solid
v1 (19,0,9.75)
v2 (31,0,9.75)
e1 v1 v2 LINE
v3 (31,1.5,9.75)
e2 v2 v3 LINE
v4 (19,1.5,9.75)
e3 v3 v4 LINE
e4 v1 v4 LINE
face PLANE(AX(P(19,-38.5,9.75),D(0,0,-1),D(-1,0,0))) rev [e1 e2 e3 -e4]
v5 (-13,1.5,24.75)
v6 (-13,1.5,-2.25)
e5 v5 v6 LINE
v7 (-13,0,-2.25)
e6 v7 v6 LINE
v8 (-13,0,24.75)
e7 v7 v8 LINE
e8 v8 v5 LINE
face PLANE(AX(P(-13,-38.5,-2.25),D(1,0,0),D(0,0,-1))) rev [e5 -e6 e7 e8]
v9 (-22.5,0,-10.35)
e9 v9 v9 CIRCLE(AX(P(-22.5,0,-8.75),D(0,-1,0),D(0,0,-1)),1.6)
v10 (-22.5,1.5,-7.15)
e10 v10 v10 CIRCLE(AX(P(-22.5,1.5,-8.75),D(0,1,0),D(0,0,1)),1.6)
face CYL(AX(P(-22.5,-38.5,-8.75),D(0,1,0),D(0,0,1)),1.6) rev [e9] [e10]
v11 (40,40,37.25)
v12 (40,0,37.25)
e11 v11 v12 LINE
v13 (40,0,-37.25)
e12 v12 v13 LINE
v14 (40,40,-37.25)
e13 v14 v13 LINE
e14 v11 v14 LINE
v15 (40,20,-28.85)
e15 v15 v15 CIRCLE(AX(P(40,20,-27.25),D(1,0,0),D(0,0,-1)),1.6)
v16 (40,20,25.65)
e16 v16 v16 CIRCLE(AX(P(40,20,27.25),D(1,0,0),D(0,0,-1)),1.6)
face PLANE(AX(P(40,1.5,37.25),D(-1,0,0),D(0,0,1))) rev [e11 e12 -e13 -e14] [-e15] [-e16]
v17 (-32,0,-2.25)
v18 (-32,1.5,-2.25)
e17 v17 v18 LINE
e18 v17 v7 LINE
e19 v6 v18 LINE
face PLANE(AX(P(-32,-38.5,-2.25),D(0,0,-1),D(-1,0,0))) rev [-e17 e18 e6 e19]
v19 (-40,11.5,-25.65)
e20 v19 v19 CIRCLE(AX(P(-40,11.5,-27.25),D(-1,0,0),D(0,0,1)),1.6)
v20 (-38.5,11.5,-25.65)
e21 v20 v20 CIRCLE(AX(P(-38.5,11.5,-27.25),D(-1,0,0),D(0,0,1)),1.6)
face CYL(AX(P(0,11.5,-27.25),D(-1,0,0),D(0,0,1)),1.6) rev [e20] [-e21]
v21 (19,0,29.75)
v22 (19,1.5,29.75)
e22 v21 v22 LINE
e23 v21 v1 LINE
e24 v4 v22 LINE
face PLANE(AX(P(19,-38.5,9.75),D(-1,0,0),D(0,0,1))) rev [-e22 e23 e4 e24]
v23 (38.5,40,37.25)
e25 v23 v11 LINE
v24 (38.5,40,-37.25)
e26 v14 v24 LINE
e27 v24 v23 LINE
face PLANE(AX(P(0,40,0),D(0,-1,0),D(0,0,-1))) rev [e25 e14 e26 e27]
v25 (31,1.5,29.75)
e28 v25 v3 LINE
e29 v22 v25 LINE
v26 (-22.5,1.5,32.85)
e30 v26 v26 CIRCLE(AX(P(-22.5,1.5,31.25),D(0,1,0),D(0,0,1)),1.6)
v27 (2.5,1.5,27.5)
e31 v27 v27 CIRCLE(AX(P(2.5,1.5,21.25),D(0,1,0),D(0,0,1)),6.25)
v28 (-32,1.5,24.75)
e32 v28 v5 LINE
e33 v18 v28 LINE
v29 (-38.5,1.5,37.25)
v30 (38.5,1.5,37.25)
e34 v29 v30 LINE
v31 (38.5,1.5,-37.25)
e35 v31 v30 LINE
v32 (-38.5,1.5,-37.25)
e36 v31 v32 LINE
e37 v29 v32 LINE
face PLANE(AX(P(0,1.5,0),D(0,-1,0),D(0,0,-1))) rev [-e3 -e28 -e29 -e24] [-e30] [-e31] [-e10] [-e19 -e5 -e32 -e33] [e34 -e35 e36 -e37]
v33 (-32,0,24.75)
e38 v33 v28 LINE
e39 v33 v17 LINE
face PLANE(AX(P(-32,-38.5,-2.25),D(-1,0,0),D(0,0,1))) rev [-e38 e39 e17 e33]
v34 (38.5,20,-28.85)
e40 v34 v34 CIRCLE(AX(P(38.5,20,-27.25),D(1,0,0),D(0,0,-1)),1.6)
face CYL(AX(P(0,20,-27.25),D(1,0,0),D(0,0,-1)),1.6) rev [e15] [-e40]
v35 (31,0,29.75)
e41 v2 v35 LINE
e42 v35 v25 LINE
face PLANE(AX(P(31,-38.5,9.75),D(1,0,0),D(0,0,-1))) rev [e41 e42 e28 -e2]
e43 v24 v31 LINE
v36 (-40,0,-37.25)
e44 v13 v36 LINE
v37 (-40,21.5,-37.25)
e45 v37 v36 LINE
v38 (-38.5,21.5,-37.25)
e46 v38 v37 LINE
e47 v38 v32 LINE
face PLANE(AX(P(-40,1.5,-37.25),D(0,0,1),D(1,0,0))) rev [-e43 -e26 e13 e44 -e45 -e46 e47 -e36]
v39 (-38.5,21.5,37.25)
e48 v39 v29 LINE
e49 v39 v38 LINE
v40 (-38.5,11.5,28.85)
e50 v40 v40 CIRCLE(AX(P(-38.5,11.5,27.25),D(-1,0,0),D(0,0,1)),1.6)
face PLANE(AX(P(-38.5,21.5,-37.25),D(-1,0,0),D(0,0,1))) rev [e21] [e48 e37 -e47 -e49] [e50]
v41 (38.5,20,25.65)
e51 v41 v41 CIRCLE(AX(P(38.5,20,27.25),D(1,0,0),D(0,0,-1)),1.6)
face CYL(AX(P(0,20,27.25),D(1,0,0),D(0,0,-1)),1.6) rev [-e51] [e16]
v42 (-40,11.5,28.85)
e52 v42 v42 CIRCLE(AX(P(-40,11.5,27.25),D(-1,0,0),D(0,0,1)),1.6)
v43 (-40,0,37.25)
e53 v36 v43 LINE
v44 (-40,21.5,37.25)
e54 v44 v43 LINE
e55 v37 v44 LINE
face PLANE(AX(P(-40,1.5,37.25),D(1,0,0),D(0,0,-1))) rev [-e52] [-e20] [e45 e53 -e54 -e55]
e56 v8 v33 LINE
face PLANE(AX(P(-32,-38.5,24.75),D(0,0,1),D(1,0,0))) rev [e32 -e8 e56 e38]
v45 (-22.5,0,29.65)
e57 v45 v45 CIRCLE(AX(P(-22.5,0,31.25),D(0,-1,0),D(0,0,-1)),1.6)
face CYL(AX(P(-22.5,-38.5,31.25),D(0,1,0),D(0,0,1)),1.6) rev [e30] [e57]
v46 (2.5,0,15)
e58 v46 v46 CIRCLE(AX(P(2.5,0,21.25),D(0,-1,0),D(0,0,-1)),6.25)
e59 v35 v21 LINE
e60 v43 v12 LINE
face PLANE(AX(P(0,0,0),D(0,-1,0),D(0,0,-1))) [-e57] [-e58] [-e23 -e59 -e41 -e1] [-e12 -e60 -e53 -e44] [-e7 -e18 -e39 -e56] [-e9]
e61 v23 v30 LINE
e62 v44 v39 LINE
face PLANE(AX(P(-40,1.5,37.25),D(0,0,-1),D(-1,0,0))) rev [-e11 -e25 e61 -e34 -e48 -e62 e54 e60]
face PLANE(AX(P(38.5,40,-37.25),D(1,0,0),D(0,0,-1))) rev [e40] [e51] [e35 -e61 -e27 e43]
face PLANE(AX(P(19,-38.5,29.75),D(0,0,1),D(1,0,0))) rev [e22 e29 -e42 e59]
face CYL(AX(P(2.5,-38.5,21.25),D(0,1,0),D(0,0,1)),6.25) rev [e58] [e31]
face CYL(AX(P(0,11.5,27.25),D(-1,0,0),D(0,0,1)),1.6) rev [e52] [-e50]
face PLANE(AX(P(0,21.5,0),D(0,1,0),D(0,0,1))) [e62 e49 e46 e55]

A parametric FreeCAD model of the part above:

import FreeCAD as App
import Part
import Sketcher
from FreeCAD import Vector
Q = App.Units.Quantity

doc = App.newDocument("Part")
body = doc.addObject("PartDesign::Body", "Body")

sketch1 = body.newObject("Sketcher::SketchObject", "Sketch")
sketch1.AttachmentSupport = (doc.getObject("XZ_Plane"), [""])
sketch1.MapMode = "FlatFace"
sketch1.addGeometry([
    Part.LineSegment(Vector(-40, -37, 0), Vector(-40, 37, 0)),
    Part.LineSegment(Vector(-40, 37, 0), Vector(40, 37, 0)),
    Part.LineSegment(Vector(40, 37, 0), Vector(40, -37, 0)),
    Part.LineSegment(Vector(40, -37, 0), Vector(-40, -37, 0)),
], False)
sketch1.addConstraint([
    Sketcher.Constraint("Coincident", 0, 2, 1, 1),
    Sketcher.Constraint("Coincident", 1, 2, 2, 1),
    Sketcher.Constraint("Coincident", 2, 2, 3, 1),
    Sketcher.Constraint("Coincident", 3, 2, 0, 1),
    Sketcher.Constraint("Vertical", 0),
    Sketcher.Constraint("Horizontal", 1),
    Sketcher.Constraint("Vertical", 2),
    Sketcher.Constraint("Horizontal", 3),
    Sketcher.Constraint("Symmetric", 0, 2, 2, 2, -1, 1),
    Sketcher.Constraint("DistanceX", 1, 1, 1, 2, Q("80 mm")),
    Sketcher.Constraint("DistanceY", 0, 1, 0, 2, Q("74.5 mm")),
])
pad1 = body.newObject("PartDesign::Pad", "Pad")
pad1.Profile = sketch1
pad1.Length = 1.5
pad1.Reversed = True

sketch2 = body.newObject("Sketcher::SketchObject", "Sketch001")
sketch2.AttachmentSupport = (doc.getObject("XZ_Plane"), [""])
sketch2.MapMode = "FlatFace"
sketch2.AttachmentOffset = App.Placement(Vector(0, 0, -1.5), App.Rotation())
sketch2.addGeometry([
    Part.LineSegment(Vector(-40, -37.2, 0), Vector(-40, 37.2, 0)),
    Part.LineSegment(Vector(-40, 37.2, 0), Vector(-38.5, 37.2, 0)),
    Part.LineSegment(Vector(-38.5, 37.2, 0), Vector(-38.5, -37.2, 0)),
    Part.LineSegment(Vector(-38.5, -37.2, 0), Vector(-40, -37.2, 0)),
], False)
sketch2.addConstraint([
    Sketcher.Constraint("Coincident", 0, 2, 1, 1),
    Sketcher.Constraint("Coincident", 1, 2, 2, 1),
    Sketcher.Constraint("Coincident", 2, 2, 3, 1),
    Sketcher.Constraint("Coincident", 3, 2, 0, 1),
    Sketcher.Constraint("Vertical", 0),
    Sketcher.Constraint("Horizontal", 1),
    Sketcher.Constraint("Vertical", 2),
    Sketcher.Constraint("Horizontal", 3),
    Sketcher.Constraint("DistanceX", 1, 1, 1, 2, Q("1.5 mm")),
    Sketcher.Constraint("DistanceY", 0, 1, 0, 2, Q("74.5 mm")),
    Sketcher.Constraint("DistanceX", 0, 2, -1, 1, Q("40 mm")),
    Sketcher.Constraint("DistanceY", -1, 1, 0, 2, Q("37.25 mm")),
])
pad2 = body.newObject("PartDesign::Pad", "Pad001")
pad2.Profile = sketch2
pad2.Length = 20
pad2.Reversed = True

sketch3 = body.newObject("Sketcher::SketchObject", "Sketch002")
sketch3.AttachmentSupport = (doc.getObject("XZ_Plane"), [""])
sketch3.MapMode = "FlatFace"
sketch3.AttachmentOffset = App.Placement(Vector(0, 0, -1.5), App.Rotation())
sketch3.addGeometry([
    Part.LineSegment(Vector(38.5, -37.2, 0), Vector(38.5, 37.2, 0)),
    Part.LineSegment(Vector(38.5, 37.2, 0), Vector(40, 37.2, 0)),
    Part.LineSegment(Vector(40, 37.2, 0), Vector(40, -37.2, 0)),
    Part.LineSegment(Vector(40, -37.2, 0), Vector(38.5, -37.2, 0)),
], False)
sketch3.addConstraint([
    Sketcher.Constraint("Coincident", 0, 2, 1, 1),
    Sketcher.Constraint("Coincident", 1, 2, 2, 1),
    Sketcher.Constraint("Coincident", 2, 2, 3, 1),
    Sketcher.Constraint("Coincident", 3, 2, 0, 1),
    Sketcher.Constraint("Vertical", 0),
    Sketcher.Constraint("Horizontal", 1),
    Sketcher.Constraint("Vertical", 2),
    Sketcher.Constraint("Horizontal", 3),
    Sketcher.Constraint("DistanceX", 1, 1, 1, 2, Q("1.5 mm")),
    Sketcher.Constraint("DistanceY", 0, 1, 0, 2, Q("74.5 mm")),
    Sketcher.Constraint("DistanceX", -1, 1, 1, 2, Q("40 mm")),
    Sketcher.Constraint("DistanceY", -1, 1, 0, 2, Q("37.25 mm")),
])
pad3 = body.newObject("PartDesign::Pad", "Pad002")
pad3.Profile = sketch3
pad3.Length = 38.5
pad3.Reversed = True

sketch4 = body.newObject("Sketcher::SketchObject", "Sketch003")
sketch4.AttachmentSupport = (doc.getObject("XZ_Plane"), [""])
sketch4.MapMode = "FlatFace"
sketch4.AttachmentOffset = App.Placement(Vector(0, 0, -1.5), App.Rotation())
sketch4.addGeometry([
    Part.Circle(Vector(-22.5, -8.8, 0), Vector(0, 0, 1), 1.6),
    Part.Circle(Vector(-22.5, 31.2, 0), Vector(0, 0, 1), 1.6),
    Part.Circle(Vector(2.5, 21.2, 0), Vector(0, 0, 1), 6.2),
    Part.LineSegment(Vector(-32, -2.2, 0), Vector(-32, 24.8, 0)),
    Part.LineSegment(Vector(-32, 24.8, 0), Vector(-13, 24.8, 0)),
    Part.LineSegment(Vector(-13, 24.8, 0), Vector(-13, -2.2, 0)),
    Part.LineSegment(Vector(-13, -2.2, 0), Vector(-32, -2.2, 0)),
    Part.LineSegment(Vector(19, 9.8, 0), Vector(19, 29.8, 0)),
    Part.LineSegment(Vector(19, 29.8, 0), Vector(31, 29.8, 0)),
    Part.LineSegment(Vector(31, 29.8, 0), Vector(31, 9.8, 0)),
    Part.LineSegment(Vector(31, 9.8, 0), Vector(19, 9.8, 0)),
], False)
sketch4.addConstraint([
    Sketcher.Constraint("Coincident", 3, 2, 4, 1),
    Sketcher.Constraint("Coincident", 4, 2, 5, 1),
    Sketcher.Constraint("Coincident", 5, 2, 6, 1),
    Sketcher.Constraint("Coincident", 6, 2, 3, 1),
    Sketcher.Constraint("Coincident", 7, 2, 8, 1),
    Sketcher.Constraint("Coincident", 8, 2, 9, 1),
    Sketcher.Constraint("Coincident", 9, 2, 10, 1),
    Sketcher.Constraint("Coincident", 10, 2, 7, 1),
    Sketcher.Constraint("Vertical", 3),
    Sketcher.Constraint("Horizontal", 4),
    Sketcher.Constraint("Vertical", 5),
    Sketcher.Constraint("Horizontal", 6),
    Sketcher.Constraint("Vertical", 7),
    Sketcher.Constraint("Horizontal", 8),
    Sketcher.Constraint("Vertical", 9),
    Sketcher.Constraint("Horizontal", 10),
    Sketcher.Constraint("Equal", 0, 1),
    Sketcher.Constraint("Vertical", 0, 3, 1, 3),
    Sketcher.Constraint("Diameter", 0, Q("3.2 mm")),
    Sketcher.Constraint("Diameter", 2, Q("12.5 mm")),
    Sketcher.Constraint("DistanceX", 4, 1, 4, 2, Q("19 mm")),
    Sketcher.Constraint("DistanceX", 8, 1, 8, 2, Q("12 mm")),
    Sketcher.Constraint("DistanceY", 3, 1, 3, 2, Q("27 mm")),
    Sketcher.Constraint("DistanceY", 7, 1, 7, 2, Q("20 mm")),
    Sketcher.Constraint("DistanceX", 3, 2, -1, 1, Q("32 mm")),
    Sketcher.Constraint("DistanceX", -1, 1, 7, 2, Q("19 mm")),
    Sketcher.Constraint("DistanceY", 0, 3, 1, 3, Q("40 mm")),
    Sketcher.Constraint("DistanceX", 1, 3, 2, 3, Q("25 mm")),
    Sketcher.Constraint("DistanceY", 2, 3, 1, 3, Q("10 mm")),
    Sketcher.Constraint("DistanceY", 4, 2, 7, 2, Q("5 mm")),
    Sketcher.Constraint("DistanceX", 0, 3, -1, 1, Q("22.5 mm")),
    Sketcher.Constraint("DistanceY", 3, 2, 1, 3, Q("6.5 mm")),
    Sketcher.Constraint("DistanceY", 0, 3, -1, 1, Q("8.75 mm")),
])
pocket1 = body.newObject("PartDesign::Pocket", "Pocket")
pocket1.Profile = sketch4
pocket1.Length = 40
pocket1.Reversed = True

sketch5 = body.newObject("Sketcher::SketchObject", "Sketch004")
sketch5.AttachmentSupport = (doc.getObject("YZ_Plane"), [""])
sketch5.MapMode = "FlatFace"
sketch5.AttachmentOffset = App.Placement(Vector(0, 0, -40), App.Rotation())
sketch5.addGeometry([
    Part.Circle(Vector(11.5, 27.2, 0), Vector(0, 0, 1), 1.6),
    Part.Circle(Vector(11.5, -27.2, 0), Vector(0, 0, 1), 1.6),
], False)
sketch5.addConstraint([
    Sketcher.Constraint("Equal", 0, 1),
    Sketcher.Constraint("Symmetric", 0, 3, 1, 3, -1),
    Sketcher.Constraint("Diameter", 0, Q("3.2 mm")),
    Sketcher.Constraint("DistanceX", -1, 1, 0, 3, Q("11.5 mm")),
    Sketcher.Constraint("DistanceY", 1, 3, 0, 3, Q("54.5 mm")),
])
pocket2 = body.newObject("PartDesign::Pocket", "Pocket001")
pocket2.Profile = sketch5
pocket2.Length = 40
pocket2.Reversed = True

sketch6 = body.newObject("Sketcher::SketchObject", "Sketch005")
sketch6.AttachmentSupport = (doc.getObject("YZ_Plane"), [""])
sketch6.MapMode = "FlatFace"
sketch6.AttachmentOffset = App.Placement(Vector(0, 0, 40), App.Rotation())
sketch6.addGeometry([
    Part.Circle(Vector(20, 27.2, 0), Vector(0, 0, 1), 1.6),
    Part.Circle(Vector(20, -27.2, 0), Vector(0, 0, 1), 1.6),
], False)
sketch6.addConstraint([
    Sketcher.Constraint("Equal", 0, 1),
    Sketcher.Constraint("Symmetric", 0, 3, 1, 3, -1),
    Sketcher.Constraint("Diameter", 0, Q("3.2 mm")),
    Sketcher.Constraint("DistanceX", -1, 1, 0, 3, Q("20 mm")),
    Sketcher.Constraint("DistanceY", 1, 3, 0, 3, Q("54.5 mm")),
])
pocket3 = body.newObject("PartDesign::Pocket", "Pocket002")
pocket3.Profile = sketch6
pocket3.Length = 40

doc.recompute()
